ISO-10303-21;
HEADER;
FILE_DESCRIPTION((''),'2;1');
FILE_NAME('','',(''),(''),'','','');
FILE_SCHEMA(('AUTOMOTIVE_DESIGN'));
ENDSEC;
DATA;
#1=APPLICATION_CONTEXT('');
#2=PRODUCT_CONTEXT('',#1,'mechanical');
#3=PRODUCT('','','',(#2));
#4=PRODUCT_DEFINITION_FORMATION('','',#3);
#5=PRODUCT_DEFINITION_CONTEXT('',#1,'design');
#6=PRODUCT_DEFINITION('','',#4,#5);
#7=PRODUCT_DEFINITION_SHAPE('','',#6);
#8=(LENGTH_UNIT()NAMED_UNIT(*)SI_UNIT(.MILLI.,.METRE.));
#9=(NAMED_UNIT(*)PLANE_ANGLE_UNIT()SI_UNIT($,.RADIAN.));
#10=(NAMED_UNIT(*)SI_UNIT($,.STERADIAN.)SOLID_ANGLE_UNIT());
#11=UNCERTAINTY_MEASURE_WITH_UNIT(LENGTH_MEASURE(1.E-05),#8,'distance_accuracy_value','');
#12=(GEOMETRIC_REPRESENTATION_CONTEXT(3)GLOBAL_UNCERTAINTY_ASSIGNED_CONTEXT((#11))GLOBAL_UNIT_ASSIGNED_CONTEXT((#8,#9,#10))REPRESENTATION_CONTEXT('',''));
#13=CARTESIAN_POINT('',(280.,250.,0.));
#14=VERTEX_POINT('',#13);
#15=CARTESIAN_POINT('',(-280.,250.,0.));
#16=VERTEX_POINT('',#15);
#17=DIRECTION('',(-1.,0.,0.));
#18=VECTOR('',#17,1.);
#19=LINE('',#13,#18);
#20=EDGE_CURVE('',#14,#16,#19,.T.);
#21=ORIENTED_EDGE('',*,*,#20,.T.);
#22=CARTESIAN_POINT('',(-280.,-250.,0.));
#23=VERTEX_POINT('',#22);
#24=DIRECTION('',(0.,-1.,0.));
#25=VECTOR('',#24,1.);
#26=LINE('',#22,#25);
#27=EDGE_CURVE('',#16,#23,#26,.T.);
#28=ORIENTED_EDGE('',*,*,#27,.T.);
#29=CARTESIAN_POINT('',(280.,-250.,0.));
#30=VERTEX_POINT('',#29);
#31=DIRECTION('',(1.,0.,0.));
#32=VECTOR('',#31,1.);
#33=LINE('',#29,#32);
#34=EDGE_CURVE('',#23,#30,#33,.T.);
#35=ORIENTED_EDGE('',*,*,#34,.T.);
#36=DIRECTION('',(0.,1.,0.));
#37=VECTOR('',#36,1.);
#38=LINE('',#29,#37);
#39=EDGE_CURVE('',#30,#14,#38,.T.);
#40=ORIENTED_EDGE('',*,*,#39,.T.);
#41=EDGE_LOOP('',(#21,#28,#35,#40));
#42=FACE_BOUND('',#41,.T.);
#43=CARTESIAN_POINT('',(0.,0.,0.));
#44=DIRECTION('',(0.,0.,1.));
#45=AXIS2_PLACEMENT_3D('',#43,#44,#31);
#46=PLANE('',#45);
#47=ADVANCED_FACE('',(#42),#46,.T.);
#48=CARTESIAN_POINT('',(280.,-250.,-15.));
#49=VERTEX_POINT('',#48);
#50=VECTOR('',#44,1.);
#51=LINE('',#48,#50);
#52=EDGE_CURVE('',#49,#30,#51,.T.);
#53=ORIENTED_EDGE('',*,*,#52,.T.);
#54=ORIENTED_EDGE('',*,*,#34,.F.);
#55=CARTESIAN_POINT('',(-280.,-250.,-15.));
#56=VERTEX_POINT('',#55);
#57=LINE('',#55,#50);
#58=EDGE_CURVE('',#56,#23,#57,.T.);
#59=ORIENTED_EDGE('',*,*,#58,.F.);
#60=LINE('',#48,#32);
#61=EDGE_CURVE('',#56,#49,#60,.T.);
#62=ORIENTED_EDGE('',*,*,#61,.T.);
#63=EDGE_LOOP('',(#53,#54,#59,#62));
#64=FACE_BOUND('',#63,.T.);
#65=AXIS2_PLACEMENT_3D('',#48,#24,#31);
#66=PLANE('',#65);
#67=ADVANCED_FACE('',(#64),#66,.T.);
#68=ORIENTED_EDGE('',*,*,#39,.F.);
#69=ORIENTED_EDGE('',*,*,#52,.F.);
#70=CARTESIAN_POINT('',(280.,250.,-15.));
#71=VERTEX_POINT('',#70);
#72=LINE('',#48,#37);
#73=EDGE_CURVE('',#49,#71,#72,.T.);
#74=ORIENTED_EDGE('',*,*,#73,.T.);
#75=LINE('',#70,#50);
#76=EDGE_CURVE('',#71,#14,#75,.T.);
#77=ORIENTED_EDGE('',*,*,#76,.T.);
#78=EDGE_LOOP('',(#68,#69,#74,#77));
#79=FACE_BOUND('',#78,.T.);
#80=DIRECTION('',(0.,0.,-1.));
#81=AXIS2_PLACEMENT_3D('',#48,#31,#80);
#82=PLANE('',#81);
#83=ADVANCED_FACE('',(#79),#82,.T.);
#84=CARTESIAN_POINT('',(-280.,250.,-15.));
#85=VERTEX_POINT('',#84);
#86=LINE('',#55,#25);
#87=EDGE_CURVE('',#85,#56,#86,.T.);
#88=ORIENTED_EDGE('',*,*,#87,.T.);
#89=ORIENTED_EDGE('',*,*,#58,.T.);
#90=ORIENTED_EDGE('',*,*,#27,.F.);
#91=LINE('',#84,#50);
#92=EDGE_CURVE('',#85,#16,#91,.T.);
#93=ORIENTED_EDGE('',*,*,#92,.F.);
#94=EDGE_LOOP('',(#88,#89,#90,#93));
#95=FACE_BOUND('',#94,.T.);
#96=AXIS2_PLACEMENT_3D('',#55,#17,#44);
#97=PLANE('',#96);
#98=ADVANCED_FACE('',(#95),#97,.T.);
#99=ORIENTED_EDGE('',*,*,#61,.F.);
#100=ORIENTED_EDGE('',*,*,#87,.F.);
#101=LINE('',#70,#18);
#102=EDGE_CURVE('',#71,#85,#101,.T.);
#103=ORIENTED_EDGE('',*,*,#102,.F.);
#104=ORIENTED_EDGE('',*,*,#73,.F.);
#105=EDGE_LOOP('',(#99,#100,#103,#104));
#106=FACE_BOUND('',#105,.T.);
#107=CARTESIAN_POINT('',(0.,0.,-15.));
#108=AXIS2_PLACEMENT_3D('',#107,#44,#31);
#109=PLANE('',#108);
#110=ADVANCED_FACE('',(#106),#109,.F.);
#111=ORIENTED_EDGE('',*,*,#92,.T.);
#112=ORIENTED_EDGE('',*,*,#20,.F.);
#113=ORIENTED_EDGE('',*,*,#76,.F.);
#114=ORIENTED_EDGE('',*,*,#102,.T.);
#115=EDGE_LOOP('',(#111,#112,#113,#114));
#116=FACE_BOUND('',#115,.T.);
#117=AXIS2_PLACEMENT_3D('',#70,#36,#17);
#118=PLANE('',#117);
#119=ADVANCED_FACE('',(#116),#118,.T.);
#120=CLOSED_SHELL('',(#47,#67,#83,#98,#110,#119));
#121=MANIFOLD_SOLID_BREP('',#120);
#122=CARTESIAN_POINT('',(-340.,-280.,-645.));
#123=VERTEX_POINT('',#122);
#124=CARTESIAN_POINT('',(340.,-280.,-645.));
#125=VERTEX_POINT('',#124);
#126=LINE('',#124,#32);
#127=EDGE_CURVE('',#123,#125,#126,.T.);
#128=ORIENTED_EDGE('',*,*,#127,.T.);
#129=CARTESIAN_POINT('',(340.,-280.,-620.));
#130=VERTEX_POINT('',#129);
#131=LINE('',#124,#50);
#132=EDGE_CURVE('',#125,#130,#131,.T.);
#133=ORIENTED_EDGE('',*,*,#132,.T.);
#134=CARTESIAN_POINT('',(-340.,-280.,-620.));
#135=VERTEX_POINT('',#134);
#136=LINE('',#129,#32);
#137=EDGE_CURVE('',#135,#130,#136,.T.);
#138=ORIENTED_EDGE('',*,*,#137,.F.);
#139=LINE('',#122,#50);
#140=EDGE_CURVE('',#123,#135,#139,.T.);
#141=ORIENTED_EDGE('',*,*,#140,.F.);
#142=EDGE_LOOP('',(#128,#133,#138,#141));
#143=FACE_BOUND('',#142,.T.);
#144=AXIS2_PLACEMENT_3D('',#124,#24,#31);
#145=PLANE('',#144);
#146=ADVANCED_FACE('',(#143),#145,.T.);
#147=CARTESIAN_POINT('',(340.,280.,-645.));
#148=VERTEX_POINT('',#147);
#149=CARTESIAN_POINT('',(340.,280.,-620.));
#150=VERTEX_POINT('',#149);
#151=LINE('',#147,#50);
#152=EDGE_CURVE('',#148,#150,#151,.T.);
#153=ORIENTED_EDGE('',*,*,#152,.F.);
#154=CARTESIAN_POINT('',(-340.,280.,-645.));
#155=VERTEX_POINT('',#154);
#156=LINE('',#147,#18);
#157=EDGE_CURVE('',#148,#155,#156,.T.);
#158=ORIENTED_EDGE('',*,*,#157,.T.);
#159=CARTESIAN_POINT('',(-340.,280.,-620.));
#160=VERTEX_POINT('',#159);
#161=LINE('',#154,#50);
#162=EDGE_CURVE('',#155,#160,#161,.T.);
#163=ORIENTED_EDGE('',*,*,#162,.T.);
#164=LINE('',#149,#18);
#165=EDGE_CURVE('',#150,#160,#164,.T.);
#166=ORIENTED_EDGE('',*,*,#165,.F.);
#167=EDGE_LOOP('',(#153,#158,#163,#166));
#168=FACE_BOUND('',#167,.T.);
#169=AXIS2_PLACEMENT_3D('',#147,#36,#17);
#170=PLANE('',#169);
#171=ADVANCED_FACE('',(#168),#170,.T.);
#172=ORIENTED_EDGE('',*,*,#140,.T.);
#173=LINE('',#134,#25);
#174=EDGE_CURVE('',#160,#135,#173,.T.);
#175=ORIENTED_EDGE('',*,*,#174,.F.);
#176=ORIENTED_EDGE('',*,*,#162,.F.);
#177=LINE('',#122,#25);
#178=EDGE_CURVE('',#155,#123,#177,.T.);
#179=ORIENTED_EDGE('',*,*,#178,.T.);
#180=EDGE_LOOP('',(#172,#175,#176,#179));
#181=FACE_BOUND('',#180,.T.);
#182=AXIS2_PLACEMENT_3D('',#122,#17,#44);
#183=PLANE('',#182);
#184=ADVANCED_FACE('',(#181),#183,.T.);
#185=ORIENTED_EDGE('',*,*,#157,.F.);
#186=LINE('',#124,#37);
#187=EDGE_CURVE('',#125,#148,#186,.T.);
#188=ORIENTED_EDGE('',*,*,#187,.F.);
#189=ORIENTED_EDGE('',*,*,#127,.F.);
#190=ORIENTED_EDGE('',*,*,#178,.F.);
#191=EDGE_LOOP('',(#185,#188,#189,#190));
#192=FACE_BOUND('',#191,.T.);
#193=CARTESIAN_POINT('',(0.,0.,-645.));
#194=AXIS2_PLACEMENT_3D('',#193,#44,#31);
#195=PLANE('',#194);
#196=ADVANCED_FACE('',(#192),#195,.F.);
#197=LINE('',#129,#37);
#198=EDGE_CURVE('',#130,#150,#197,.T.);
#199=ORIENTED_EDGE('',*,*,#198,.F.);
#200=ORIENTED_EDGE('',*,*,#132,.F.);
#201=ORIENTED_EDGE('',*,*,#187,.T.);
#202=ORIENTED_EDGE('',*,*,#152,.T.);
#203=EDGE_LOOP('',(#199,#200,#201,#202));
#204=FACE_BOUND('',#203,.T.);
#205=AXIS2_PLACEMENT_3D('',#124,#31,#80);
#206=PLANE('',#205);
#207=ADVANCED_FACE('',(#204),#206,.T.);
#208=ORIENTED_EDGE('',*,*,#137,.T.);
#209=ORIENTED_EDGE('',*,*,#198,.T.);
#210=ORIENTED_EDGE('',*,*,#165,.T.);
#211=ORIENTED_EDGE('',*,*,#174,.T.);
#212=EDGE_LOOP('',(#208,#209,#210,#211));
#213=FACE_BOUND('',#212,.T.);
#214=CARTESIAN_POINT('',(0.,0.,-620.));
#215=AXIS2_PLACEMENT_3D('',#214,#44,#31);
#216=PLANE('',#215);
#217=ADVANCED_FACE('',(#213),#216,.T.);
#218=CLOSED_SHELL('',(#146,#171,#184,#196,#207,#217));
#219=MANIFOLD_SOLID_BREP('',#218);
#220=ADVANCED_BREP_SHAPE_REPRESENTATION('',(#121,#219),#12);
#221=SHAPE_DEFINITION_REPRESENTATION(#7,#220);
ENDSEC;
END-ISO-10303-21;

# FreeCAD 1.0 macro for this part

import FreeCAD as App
import Part
import Sketcher

V = App.Vector
Q = App.Units.Quantity


def add_polygon(sketch, points):
    """Adds a closed chain of lines whose ends are joined by coincident constraints."""
    first, n = sketch.GeometryCount, len(points)
    for a, b in zip(points, points[1:] + points[:1]):
        sketch.addGeometry(Part.LineSegment(App.Vector(*a, 0), App.Vector(*b, 0)), False)
    for i in range(n):
        sketch.addConstraint(Sketcher.Constraint("Coincident", first + i, 2, first + (i + 1) % n, 1))

doc = App.newDocument("Part")
body = doc.addObject("PartDesign::Body", "Body")

sketch1 = body.newObject("Sketcher::SketchObject", "Sketch")
sketch1.AttachmentSupport = (doc.getObject("XY_Plane"), [""])
sketch1.MapMode = "FlatFace"
add_polygon(sketch1, [(-280, 250), (-280, -250), (280, -250), (280, 250)])
sketch1.addConstraint([
    Sketcher.Constraint("Vertical", 0),
    Sketcher.Constraint("Horizontal", 1),
    Sketcher.Constraint("Vertical", 2),
    Sketcher.Constraint("Horizontal", 3),
    Sketcher.Constraint("Symmetric", 0, 2, 2, 2, -1, 1),
    Sketcher.Constraint("DistanceX", 1, 1, 1, 2, Q("560 mm")),
    Sketcher.Constraint("DistanceY", 0, 2, 0, 1, Q("500 mm")),
])
pad1 = body.newObject("PartDesign::Pad", "Pad")
pad1.Profile = sketch1
pad1.Length = 15
pad1.Reversed = True
body2 = doc.addObject("PartDesign::Body", "Body001")

sketch2 = body2.newObject("Sketcher::SketchObject", "Sketch001")
sketch2.AttachmentSupport = (doc.getObject("XY_Plane001"), [""])
sketch2.MapMode = "FlatFace"
sketch2.AttachmentOffset = App.Placement(V(0, 0, -625), App.Rotation())
add_polygon(sketch2, [(-340, 280), (-340, -280), (340, -280), (340, 280)])
sketch2.addConstraint([
    Sketcher.Constraint("Vertical", 0),
    Sketcher.Constraint("Horizontal", 1),
    Sketcher.Constraint("Vertical", 2),
    Sketcher.Constraint("Horizontal", 3),
    Sketcher.Constraint("Symmetric", 0, 2, 2, 2, -1, 1),
    Sketcher.Constraint("DistanceX", 1, 1, 1, 2, Q("680 mm")),
    Sketcher.Constraint("DistanceY", 0, 2, 0, 1, Q("560 mm")),
])
pad2 = body2.newObject("PartDesign::Pad", "Pad001")
pad2.Profile = sketch2
pad2.Type = "TwoLengths"
pad2.Length = 5
pad2.Length2 = 20

doc.recompute()
